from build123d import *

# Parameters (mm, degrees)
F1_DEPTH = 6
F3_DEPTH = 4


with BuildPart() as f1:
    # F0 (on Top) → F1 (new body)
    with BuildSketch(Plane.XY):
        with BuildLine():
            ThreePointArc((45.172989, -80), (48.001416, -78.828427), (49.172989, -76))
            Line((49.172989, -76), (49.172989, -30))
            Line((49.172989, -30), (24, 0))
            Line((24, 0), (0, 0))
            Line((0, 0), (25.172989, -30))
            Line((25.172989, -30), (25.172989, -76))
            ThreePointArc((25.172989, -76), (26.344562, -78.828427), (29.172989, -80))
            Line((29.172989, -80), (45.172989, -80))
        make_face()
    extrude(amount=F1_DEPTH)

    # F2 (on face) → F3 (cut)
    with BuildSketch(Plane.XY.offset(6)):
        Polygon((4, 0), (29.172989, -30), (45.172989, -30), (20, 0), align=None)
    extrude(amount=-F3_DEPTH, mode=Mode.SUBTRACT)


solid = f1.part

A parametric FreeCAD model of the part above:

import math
import FreeCAD as App
import Part
import Sketcher

V = App.Vector
Q = App.Units.Quantity

doc = App.newDocument("Part")
body = doc.addObject("PartDesign::Body", "Body")

sketch1 = body.newObject("Sketcher::SketchObject", "Sketch")
sketch1.AttachmentSupport = (doc.getObject("XY_Plane"), [""])
sketch1.MapMode = "FlatFace"
sketch1.addGeometry([
    Part.ArcOfCircle(Part.Circle(V(45.2, -76, 0), V(0, 0, 1), 4), math.radians(-90), math.radians(0)),
    Part.LineSegment(V(49.2, -76, 0), V(49.2, -30, 0)),
    Part.LineSegment(V(49.2, -30, 0), V(24, 0, 0)),
    Part.LineSegment(V(24, 0, 0), V(0, 0, 0)),
    Part.LineSegment(V(0, 0, 0), V(25.2, -30, 0)),
    Part.LineSegment(V(25.2, -30, 0), V(25.2, -76, 0)),
    Part.ArcOfCircle(Part.Circle(V(29.2, -76, 0), V(0, 0, 1), 4), math.radians(-180), math.radians(-90)),
    Part.LineSegment(V(29.2, -80, 0), V(45.2, -80, 0)),
], False)
sketch1.addConstraint([
    Sketcher.Constraint("Tangent", 0, 2, 1, 1),
    Sketcher.Constraint("Coincident", 1, 2, 2, 1),
    Sketcher.Constraint("Coincident", 2, 2, 3, 1),
    Sketcher.Constraint("Coincident", 3, 2, 4, 1),
    Sketcher.Constraint("Coincident", 4, 2, 5, 1),
    Sketcher.Constraint("Tangent", 5, 2, 6, 1),
    Sketcher.Constraint("Tangent", 6, 2, 7, 1),
    Sketcher.Constraint("Tangent", 7, 2, 0, 1),
    Sketcher.Constraint("Vertical", 1),
    Sketcher.Constraint("Horizontal", 3),
    Sketcher.Constraint("Vertical", 5),
    Sketcher.Constraint("Horizontal", 7),
    Sketcher.Constraint("Coincident", 3, 2, -1, 1),
    Sketcher.Constraint("Equal", 0, 6),
    Sketcher.Constraint("Parallel", 2, 4),
    Sketcher.Constraint("Horizontal", 1, 2, 4, 2),
    Sketcher.Constraint("Radius", 0, Q("4 mm")),
    Sketcher.Constraint("DistanceX", 3, 2, 3, 1, Q("24 mm")),
    Sketcher.Constraint("DistanceY", 1, 1, 1, 2, Q("46 mm")),
    Sketcher.Constraint("Angle", 2, Q("130 deg")),
    Sketcher.Constraint("DistanceY", 0, 3, -1, 1, Q("76 mm")),
])
pad1 = body.newObject("PartDesign::Pad", "Pad")
pad1.Profile = sketch1
pad1.Length = 6

sketch2 = body.newObject("Sketcher::SketchObject", "Sketch001")
sketch2.AttachmentSupport = (doc.getObject("XY_Plane"), [""])
sketch2.MapMode = "FlatFace"
sketch2.AttachmentOffset = App.Placement(V(0, 0, 6), App.Rotation())
sketch2.addGeometry([
    Part.LineSegment(V(4, 0, 0), V(29, -30, 0)),
    Part.LineSegment(V(29, -30, 0), V(45, -30, 0)),
    Part.LineSegment(V(45, -30, 0), V(20, 0, 0)),
    Part.LineSegment(V(20, 0, 0), V(4, 0, 0)),
], False)
sketch2.addConstraint([
    Sketcher.Constraint("Coincident", 0, 2, 1, 1),
    Sketcher.Constraint("Coincident", 1, 2, 2, 1),
    Sketcher.Constraint("Coincident", 2, 2, 3, 1),
    Sketcher.Constraint("Coincident", 3, 2, 0, 1),
    Sketcher.Constraint("Horizontal", 1),
    Sketcher.Constraint("Horizontal", 3),
    Sketcher.Constraint("PointOnObject", 2, 2, -1),
    Sketcher.Constraint("Parallel", 0, 2),
    Sketcher.Constraint("DistanceX", 1, 1, 1, 2, Q("16 mm")),
    Sketcher.Constraint("Angle", 0, Q("-50 deg")),
    Sketcher.Constraint("DistanceY", 0, 2, -1, 1, Q("30 mm")),
    Sketcher.Constraint("DistanceX", -1, 1, 2, 2, Q("20 mm")),
])
pocket1 = body.newObject("PartDesign::Pocket", "Pocket")
pocket1.Profile = sketch2
pocket1.Length = 4

doc.recompute()
